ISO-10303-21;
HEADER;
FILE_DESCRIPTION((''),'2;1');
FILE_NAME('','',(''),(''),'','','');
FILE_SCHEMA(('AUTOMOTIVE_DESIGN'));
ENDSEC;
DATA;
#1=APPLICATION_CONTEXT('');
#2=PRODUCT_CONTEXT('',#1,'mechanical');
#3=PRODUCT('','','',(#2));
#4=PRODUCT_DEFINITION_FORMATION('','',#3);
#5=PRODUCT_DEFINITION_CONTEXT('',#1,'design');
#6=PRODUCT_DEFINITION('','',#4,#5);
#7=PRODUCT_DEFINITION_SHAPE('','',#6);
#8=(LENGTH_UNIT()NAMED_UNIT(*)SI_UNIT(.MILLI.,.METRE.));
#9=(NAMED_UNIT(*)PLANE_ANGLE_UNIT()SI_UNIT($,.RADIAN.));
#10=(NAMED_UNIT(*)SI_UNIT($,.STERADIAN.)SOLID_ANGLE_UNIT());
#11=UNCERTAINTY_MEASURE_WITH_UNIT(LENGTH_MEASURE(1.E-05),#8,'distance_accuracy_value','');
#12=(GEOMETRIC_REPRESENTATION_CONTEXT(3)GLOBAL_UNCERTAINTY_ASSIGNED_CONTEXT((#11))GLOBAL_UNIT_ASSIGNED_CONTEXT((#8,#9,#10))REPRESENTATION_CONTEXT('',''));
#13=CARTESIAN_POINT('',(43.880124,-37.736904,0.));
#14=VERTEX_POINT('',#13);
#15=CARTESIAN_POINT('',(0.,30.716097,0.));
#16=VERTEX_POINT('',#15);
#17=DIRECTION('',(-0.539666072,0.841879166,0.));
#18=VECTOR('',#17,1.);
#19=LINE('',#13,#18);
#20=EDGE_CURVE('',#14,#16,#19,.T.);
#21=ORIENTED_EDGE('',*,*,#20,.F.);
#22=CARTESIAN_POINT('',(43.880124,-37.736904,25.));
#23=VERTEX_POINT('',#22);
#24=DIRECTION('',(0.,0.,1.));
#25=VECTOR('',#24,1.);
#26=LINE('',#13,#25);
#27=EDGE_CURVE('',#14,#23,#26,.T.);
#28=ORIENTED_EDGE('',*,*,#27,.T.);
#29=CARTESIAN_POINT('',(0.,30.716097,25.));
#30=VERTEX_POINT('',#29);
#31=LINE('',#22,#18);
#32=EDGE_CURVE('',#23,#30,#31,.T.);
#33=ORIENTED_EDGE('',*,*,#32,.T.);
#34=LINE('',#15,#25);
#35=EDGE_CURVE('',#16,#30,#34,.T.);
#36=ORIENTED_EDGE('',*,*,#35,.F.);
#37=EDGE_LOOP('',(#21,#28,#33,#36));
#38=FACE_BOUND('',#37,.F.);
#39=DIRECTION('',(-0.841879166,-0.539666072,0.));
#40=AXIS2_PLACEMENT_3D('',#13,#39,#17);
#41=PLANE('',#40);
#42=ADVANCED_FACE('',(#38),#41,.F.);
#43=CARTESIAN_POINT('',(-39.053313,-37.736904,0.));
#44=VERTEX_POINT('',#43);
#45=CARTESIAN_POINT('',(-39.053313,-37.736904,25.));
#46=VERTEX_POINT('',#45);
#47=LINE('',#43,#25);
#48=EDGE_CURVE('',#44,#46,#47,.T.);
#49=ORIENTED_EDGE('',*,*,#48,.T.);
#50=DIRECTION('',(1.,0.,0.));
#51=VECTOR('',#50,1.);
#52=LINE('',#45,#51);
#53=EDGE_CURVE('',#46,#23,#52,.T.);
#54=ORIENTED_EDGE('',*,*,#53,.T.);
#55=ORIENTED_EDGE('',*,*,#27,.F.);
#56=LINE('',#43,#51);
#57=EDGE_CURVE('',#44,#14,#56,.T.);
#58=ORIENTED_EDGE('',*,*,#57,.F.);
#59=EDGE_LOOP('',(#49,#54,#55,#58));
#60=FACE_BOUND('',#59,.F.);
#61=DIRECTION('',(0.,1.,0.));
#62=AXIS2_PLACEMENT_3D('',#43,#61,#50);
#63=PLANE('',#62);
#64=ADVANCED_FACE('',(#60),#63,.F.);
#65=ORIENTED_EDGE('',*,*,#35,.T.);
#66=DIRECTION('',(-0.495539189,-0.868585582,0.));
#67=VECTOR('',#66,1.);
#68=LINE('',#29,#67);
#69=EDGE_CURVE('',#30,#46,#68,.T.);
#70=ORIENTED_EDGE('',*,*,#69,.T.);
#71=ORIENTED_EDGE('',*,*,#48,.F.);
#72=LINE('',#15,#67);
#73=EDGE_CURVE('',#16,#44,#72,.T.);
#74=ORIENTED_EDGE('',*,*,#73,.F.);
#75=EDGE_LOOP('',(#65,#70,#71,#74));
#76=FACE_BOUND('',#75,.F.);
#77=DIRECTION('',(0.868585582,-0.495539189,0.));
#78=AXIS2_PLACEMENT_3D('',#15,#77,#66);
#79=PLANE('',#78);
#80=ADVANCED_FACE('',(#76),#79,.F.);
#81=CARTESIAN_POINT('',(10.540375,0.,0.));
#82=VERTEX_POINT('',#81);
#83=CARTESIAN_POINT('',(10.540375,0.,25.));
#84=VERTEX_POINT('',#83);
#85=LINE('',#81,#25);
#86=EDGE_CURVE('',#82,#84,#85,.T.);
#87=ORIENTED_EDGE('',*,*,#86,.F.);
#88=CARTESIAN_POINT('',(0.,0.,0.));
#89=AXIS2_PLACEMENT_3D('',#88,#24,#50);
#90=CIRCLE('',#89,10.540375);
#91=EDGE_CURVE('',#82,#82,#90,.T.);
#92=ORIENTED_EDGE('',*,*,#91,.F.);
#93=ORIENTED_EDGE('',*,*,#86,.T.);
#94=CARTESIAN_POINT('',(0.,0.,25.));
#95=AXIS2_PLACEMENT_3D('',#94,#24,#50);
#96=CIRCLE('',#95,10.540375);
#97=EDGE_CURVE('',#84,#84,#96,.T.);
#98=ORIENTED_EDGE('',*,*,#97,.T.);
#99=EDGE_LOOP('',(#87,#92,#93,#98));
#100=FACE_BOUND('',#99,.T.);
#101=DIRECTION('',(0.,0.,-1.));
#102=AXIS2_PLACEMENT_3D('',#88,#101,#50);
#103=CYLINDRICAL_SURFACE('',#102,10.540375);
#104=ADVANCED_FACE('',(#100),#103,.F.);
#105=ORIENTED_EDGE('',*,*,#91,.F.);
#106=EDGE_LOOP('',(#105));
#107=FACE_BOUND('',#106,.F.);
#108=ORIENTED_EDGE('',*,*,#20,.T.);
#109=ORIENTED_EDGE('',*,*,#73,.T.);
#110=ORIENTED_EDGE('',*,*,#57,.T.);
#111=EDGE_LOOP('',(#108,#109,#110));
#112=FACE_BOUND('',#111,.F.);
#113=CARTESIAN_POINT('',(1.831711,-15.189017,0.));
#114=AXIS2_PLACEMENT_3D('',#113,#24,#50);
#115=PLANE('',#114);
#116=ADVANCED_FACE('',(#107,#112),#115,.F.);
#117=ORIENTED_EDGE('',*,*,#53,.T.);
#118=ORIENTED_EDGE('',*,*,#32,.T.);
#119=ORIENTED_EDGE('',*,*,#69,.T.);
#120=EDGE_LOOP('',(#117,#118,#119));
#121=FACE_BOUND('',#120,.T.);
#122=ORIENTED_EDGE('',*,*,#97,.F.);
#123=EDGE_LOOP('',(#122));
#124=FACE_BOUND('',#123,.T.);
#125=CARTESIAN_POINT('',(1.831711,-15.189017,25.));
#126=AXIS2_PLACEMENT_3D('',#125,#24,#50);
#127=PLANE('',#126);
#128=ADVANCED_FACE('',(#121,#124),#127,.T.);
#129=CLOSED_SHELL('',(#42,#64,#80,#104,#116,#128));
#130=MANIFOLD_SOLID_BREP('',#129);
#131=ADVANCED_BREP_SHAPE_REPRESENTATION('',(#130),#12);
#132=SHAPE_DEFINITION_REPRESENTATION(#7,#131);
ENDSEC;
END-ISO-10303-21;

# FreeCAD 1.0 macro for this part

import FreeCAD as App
import Part
import Sketcher

doc = App.newDocument("Part")
body = doc.addObject("PartDesign::Body", "Body")

# Sketch on XY plane
sketch1 = body.newObject("Sketcher::SketchObject", "Sketch")
sketch1.AttachmentSupport = (doc.getObject("XY_Plane"), [""])
sketch1.MapMode = "FlatFace"
sketch1.addGeometry([
    Part.LineSegment(App.Vector(0, 31, 0), App.Vector(-39, -38, 0)),
    Part.LineSegment(App.Vector(-39, -38, 0), App.Vector(44, -38, 0)),
    Part.LineSegment(App.Vector(44, -38, 0), App.Vector(0, 31, 0)),
    Part.Circle(App.Vector(0, 0, 0), App.Vector(0, 0, 1), 11),
], False)
sketch1.addConstraint([
    Sketcher.Constraint("Coincident", 0, 2, 1, 1),
    Sketcher.Constraint("Coincident", 1, 2, 2, 1),
    Sketcher.Constraint("Coincident", 2, 2, 0, 1),
    Sketcher.Constraint("Horizontal", 1),
    Sketcher.Constraint("Coincident", 3, 3, -1, 1),
    Sketcher.Constraint("PointOnObject", 2, 2, -2),
    Sketcher.Constraint("Diameter", 3, 21.08075),
    Sketcher.Constraint("DistanceY", 0, 2, 2, 2, 68.453001),
    Sketcher.Constraint("Distance", 2, 81.30977),
    Sketcher.Constraint("DistanceX", 1, 1, 1, 2, 82.933437),
    Sketcher.Constraint("DistanceY", 0, 2, -1, 1, 37.736904),
])
pad1 = body.newObject("PartDesign::Pad", "Pad")
pad1.Profile = sketch1
pad1.Length = 25

doc.recompute()
